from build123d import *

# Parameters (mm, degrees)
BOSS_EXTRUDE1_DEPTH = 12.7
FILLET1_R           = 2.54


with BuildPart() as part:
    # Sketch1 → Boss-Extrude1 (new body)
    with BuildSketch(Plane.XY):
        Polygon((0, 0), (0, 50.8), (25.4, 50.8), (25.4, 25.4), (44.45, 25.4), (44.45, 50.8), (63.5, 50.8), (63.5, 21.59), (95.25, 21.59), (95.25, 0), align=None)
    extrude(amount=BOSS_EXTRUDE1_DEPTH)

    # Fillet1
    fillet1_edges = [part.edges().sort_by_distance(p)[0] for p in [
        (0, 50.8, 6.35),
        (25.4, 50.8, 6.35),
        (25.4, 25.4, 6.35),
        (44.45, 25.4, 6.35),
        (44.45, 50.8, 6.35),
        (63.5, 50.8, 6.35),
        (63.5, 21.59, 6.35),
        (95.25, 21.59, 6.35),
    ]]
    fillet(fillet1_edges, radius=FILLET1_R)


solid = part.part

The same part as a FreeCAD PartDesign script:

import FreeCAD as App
import Part
import Sketcher
from FreeCAD import Vector
Q = App.Units.Quantity


def edges_at(feature, points):
    """Names of the edges that pass closest to the given points."""
    edges = feature.Shape.Edges
    near = lambda p: min(range(len(edges)), key=lambda i: edges[i].distToShape(Part.Vertex(*p))[0])
    return sorted({f"Edge{near(p) + 1}" for p in points})

doc = App.newDocument("Part")
body = doc.addObject("PartDesign::Body", "Body")

# Sketch on XY plane
sketch1 = body.newObject("Sketcher::SketchObject", "Sketch")
sketch1.AttachmentSupport = (doc.getObject("XY_Plane"), [""])
sketch1.MapMode = "FlatFace"
sketch1.addGeometry([
    Part.LineSegment(Vector(0, 50.8, 0), Vector(0, 0, 0)),  # 0
    Part.LineSegment(Vector(0, 0, 0), Vector(95.25, 0, 0)),  # 1
    Part.LineSegment(Vector(95.25, 0, 0), Vector(95.25, 21.59, 0)),  # 2
    Part.LineSegment(Vector(95.25, 21.59, 0), Vector(63.5, 21.59, 0)),  # 3
    Part.LineSegment(Vector(63.5, 21.59, 0), Vector(63.5, 50.8, 0)),  # 4
    Part.LineSegment(Vector(63.5, 50.8, 0), Vector(44.45, 50.8, 0)),  # 5
    Part.LineSegment(Vector(44.45, 50.8, 0), Vector(44.45, 25.4, 0)),  # 6
    Part.LineSegment(Vector(44.45, 25.4, 0), Vector(25.4, 25.4, 0)),  # 7
    Part.LineSegment(Vector(25.4, 25.4, 0), Vector(25.4, 50.8, 0)),  # 8
    Part.LineSegment(Vector(25.4, 50.8, 0), Vector(0, 50.8, 0)),  # 9
], False)
sketch1.addConstraint([
    Sketcher.Constraint("Coincident", 0, 2, 1, 1),
    Sketcher.Constraint("Coincident", 1, 2, 2, 1),
    Sketcher.Constraint("Coincident", 2, 2, 3, 1),
    Sketcher.Constraint("Coincident", 3, 2, 4, 1),
    Sketcher.Constraint("Coincident", 4, 2, 5, 1),
    Sketcher.Constraint("Coincident", 5, 2, 6, 1),
    Sketcher.Constraint("Coincident", 6, 2, 7, 1),
    Sketcher.Constraint("Coincident", 7, 2, 8, 1),
    Sketcher.Constraint("Coincident", 8, 2, 9, 1),
    Sketcher.Constraint("Coincident", 9, 2, 0, 1),
    Sketcher.Constraint("Vertical", 0),
    Sketcher.Constraint("Horizontal", 1),
    Sketcher.Constraint("Vertical", 2),
    Sketcher.Constraint("Horizontal", 3),
    Sketcher.Constraint("Vertical", 4),
    Sketcher.Constraint("Horizontal", 5),
    Sketcher.Constraint("Vertical", 6),
    Sketcher.Constraint("Horizontal", 7),
    Sketcher.Constraint("Vertical", 8),
    Sketcher.Constraint("Horizontal", 9),
    Sketcher.Constraint("Coincident", 0, 2, -1, 1),
    Sketcher.Constraint("Horizontal", 5, 2, 8, 2),
    Sketcher.Constraint("Equal", 5, 7),
    Sketcher.Constraint("Equal", 9, 6),
    Sketcher.Constraint("DistanceX", 9, 2, 9, 1, Q("1 in")),
    Sketcher.Constraint("DistanceY", 0, 2, 0, 1, Q("2 in")),
    Sketcher.Constraint("DistanceX", 5, 2, 2, 2, Q("2 in")),
    Sketcher.Constraint("DistanceX", 1, 1, 1, 2, Q("3.75 in")),
    Sketcher.Constraint("DistanceY", 2, 1, 2, 2, Q("0.85 in")),
])
pad1 = body.newObject("PartDesign::Pad", "Pad")
pad1.Profile = sketch1
pad1.Length = Q("0.5 in")
doc.recompute()

fillet = body.newObject("PartDesign::Fillet", "Fillet")
fillet.Base = (pad1, edges_at(pad1, [
    (0, 50.8, 6.35),
    (25.4, 50.8, 6.35),
    (25.4, 25.4, 6.35),
    (44.45, 25.4, 6.35),
    (44.45, 50.8, 6.35),
    (63.5, 50.8, 6.35),
    (63.5, 21.59, 6.35),
    (95.25, 21.59, 6.35),
]))
fillet.Radius = Q("0.1 in")

doc.recompute()
